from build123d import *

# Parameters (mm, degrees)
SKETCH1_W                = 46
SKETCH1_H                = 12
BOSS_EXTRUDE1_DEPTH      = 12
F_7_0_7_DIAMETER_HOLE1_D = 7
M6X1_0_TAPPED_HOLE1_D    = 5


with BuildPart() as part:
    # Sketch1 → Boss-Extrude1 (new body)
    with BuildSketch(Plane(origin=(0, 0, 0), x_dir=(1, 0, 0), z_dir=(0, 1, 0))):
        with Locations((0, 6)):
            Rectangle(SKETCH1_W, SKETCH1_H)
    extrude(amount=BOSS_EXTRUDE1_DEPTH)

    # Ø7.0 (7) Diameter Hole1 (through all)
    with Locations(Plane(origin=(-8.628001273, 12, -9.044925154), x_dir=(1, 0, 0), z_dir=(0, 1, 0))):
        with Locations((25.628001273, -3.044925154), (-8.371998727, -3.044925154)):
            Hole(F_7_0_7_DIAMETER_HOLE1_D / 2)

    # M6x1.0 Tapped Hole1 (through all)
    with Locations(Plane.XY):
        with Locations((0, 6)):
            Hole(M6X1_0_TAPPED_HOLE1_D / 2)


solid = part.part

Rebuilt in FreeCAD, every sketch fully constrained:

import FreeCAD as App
import Part
import Sketcher
from FreeCAD import Vector


def add_polygon(sketch, points):
    """Adds a closed chain of lines whose ends are joined by coincident constraints."""
    first, n = sketch.GeometryCount, len(points)
    for a, b in zip(points, points[1:] + points[:1]):
        sketch.addGeometry(Part.LineSegment(App.Vector(*a, 0), App.Vector(*b, 0)), False)
    for i in range(n):
        sketch.addConstraint(Sketcher.Constraint("Coincident", first + i, 2, first + (i + 1) % n, 1))

doc = App.newDocument("Part")
body = doc.addObject("PartDesign::Body", "Body")

# Sketch on XZ plane
sketch1 = body.newObject("Sketcher::SketchObject", "Sketch")
sketch1.AttachmentSupport = (doc.getObject("XZ_Plane"), [""])
sketch1.MapMode = "FlatFace"
add_polygon(sketch1, [(-23, -12), (-23, 0), (23, 0), (23, -12)])  # lines 0-3
sketch1.addConstraint(Sketcher.Constraint("Vertical", 0))
sketch1.addConstraint(Sketcher.Constraint("Horizontal", 1))
sketch1.addConstraint(Sketcher.Constraint("Vertical", 2))
sketch1.addConstraint(Sketcher.Constraint("Horizontal", 3))
sketch1.addConstraint(Sketcher.Constraint("Symmetric", 0, 2, 1, 2, -1, 1))
sketch1.addConstraint(Sketcher.Constraint("DistanceX", 1, 1, 1, 2, 46.0))
sketch1.addConstraint(Sketcher.Constraint("DistanceY", 0, 1, 0, 2, 12.0))
pad1 = body.newObject("PartDesign::Pad", "Pad")
pad1.Profile = sketch1
pad1.Length = 12
pad1.Reversed = True

# Sketch on XZ plane
sketch2 = body.newObject("Sketcher::SketchObject", "Sketch001")
sketch2.AttachmentSupport = (doc.getObject("XZ_Plane"), [""])
sketch2.MapMode = "FlatFace"
sketch2.AttachmentOffset = App.Placement(Vector(0, 0, -12), App.Rotation())
sketch2.addGeometry(Part.Circle(Vector(17, -6, 0), Vector(0, 0, 1), 3.5), False)
sketch2.addGeometry(Part.Circle(Vector(-17, -6, 0), Vector(0, 0, 1), 3.5), False)
sketch2.addConstraint(Sketcher.Constraint("Equal", 0, 1))
sketch2.addConstraint(Sketcher.Constraint("Symmetric", 0, 3, 1, 3, -2))
sketch2.addConstraint(Sketcher.Constraint("Diameter", 0, 7.0))
sketch2.addConstraint(Sketcher.Constraint("DistanceX", -1, 1, 0, 3, 17.0))
sketch2.addConstraint(Sketcher.Constraint("DistanceY", 0, 3, -1, 1, 6.0))
doc.recompute()
hole = body.newObject("PartDesign::Hole", "Hole")
hole.Profile = sketch2
hole.ThreadType = "None"
hole.Diameter = 7
hole.DepthType = "ThroughAll"
hole.Reversed = True

# Sketch on XY plane
sketch3 = body.newObject("Sketcher::SketchObject", "Sketch002")
sketch3.AttachmentSupport = (doc.getObject("XY_Plane"), [""])
sketch3.MapMode = "FlatFace"
sketch3.addGeometry(Part.Circle(Vector(0, 6, 0), Vector(0, 0, 1), 2.5), False)
sketch3.addConstraint(Sketcher.Constraint("PointOnObject", 0, 3, -2))
sketch3.addConstraint(Sketcher.Constraint("Diameter", 0, 5.0))
sketch3.addConstraint(Sketcher.Constraint("DistanceY", -1, 1, 0, 3, 6.0))
doc.recompute()
hole2 = body.newObject("PartDesign::Hole", "Hole001")
hole2.Profile = sketch3
hole2.ThreadType = "None"
hole2.Diameter = 5
hole2.DepthType = "ThroughAll"

doc.recompute()
